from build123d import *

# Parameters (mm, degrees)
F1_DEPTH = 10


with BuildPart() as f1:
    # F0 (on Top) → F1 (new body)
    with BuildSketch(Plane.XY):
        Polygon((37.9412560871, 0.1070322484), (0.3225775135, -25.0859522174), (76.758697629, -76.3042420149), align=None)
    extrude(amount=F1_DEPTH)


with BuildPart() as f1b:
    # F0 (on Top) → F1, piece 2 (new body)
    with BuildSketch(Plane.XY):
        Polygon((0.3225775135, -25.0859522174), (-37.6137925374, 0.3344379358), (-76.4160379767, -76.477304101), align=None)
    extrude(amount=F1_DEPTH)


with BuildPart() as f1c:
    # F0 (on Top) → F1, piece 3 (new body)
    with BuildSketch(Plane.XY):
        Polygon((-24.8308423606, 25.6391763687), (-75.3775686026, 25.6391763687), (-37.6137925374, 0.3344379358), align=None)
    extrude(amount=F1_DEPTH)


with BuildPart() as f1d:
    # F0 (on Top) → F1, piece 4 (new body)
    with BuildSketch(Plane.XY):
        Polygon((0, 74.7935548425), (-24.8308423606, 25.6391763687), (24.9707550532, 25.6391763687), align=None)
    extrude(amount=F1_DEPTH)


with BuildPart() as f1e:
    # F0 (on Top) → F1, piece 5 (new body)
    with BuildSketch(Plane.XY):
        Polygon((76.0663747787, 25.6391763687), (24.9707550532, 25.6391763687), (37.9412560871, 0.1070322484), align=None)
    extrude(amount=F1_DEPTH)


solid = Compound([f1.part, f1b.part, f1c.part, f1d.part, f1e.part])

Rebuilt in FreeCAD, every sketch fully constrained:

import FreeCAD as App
import Part
import Sketcher
from FreeCAD import Vector

doc = App.newDocument("Part")
body = doc.addObject("PartDesign::Body", "Body")

# Sketch on XY plane
sketch1 = doc.addObject("Sketcher::SketchObject", "Sketch")
body.addObject(sketch1)
sketch1.AttachmentSupport = (doc.XY_Plane, [""])
sketch1.MapMode = "FlatFace"
sketch1.addGeometry([
    Part.LineSegment(Vector(38, 0, 0), Vector(0, -25, 0)),
    Part.LineSegment(Vector(0, -25, 0), Vector(77, -76, 0)),
    Part.LineSegment(Vector(77, -76, 0), Vector(38, 0, 0)),
], False)
sketch1.addConstraint([
    Sketcher.Constraint("Coincident", 0, 2, 1, 1),
    Sketcher.Constraint("Coincident", 1, 2, 2, 1),
    Sketcher.Constraint("Coincident", 2, 2, 0, 1),
    Sketcher.Constraint("DistanceX", 0, 2, 1, 2, 76.43612),
    Sketcher.Constraint("DistanceY", 1, 2, 0, 2, 51.21829),
    Sketcher.Constraint("DistanceX", 0, 2, 2, 2, 37.618679),
    Sketcher.Constraint("Distance", 0, 45.275285),
    Sketcher.Constraint("DistanceX", -1, 1, 0, 2, 0.322578),
    Sketcher.Constraint("DistanceY", 0, 2, -1, 1, 25.085952),
])
pad1 = doc.addObject("PartDesign::Pad", "Pad")
body.addObject(pad1)
pad1.Profile = sketch1
pad1.Length = 10
body2 = doc.addObject("PartDesign::Body", "Body001")

# Sketch on XY plane
sketch2 = doc.addObject("Sketcher::SketchObject", "Sketch001")
body2.addObject(sketch2)
sketch2.AttachmentSupport = (doc.getObject("XY_Plane001"), [""])
sketch2.MapMode = "FlatFace"
sketch2.addGeometry([
    Part.LineSegment(Vector(0, -25, 0), Vector(-38, 0, 0)),
    Part.LineSegment(Vector(-38, 0, 0), Vector(-76, -76, 0)),
    Part.LineSegment(Vector(-76, -76, 0), Vector(0, -25, 0)),
], False)
sketch2.addConstraint([
    Sketcher.Constraint("Coincident", 0, 2, 1, 1),
    Sketcher.Constraint("Coincident", 1, 2, 2, 1),
    Sketcher.Constraint("Coincident", 2, 2, 0, 1),
    Sketcher.Constraint("Distance", 0, 45.66579),
    Sketcher.Constraint("DistanceX", 0, 2, 2, 2, 37.93637),
    Sketcher.Constraint("DistanceY", 1, 2, 2, 2, 51.391352),
    Sketcher.Constraint("Distance", 1, 86.056133),
    Sketcher.Constraint("DistanceX", 0, 2, -1, 1, 37.613793),
    Sketcher.Constraint("DistanceY", -1, 1, 0, 2, 0.334438),
])
pad2 = doc.addObject("PartDesign::Pad", "Pad001")
body2.addObject(pad2)
pad2.Profile = sketch2
pad2.Length = 10
body3 = doc.addObject("PartDesign::Body", "Body002")

# Sketch on XY plane
sketch3 = doc.addObject("Sketcher::SketchObject", "Sketch002")
body3.addObject(sketch3)
sketch3.AttachmentSupport = (doc.getObject("XY_Plane002"), [""])
sketch3.MapMode = "FlatFace"
sketch3.addGeometry([
    Part.LineSegment(Vector(-25, 26, 0), Vector(-75, 26, 0)),
    Part.LineSegment(Vector(-75, 26, 0), Vector(-38, 0, 0)),
    Part.LineSegment(Vector(-38, 0, 0), Vector(-25, 26, 0)),
], False)
sketch3.addConstraint([
    Sketcher.Constraint("Coincident", 0, 2, 1, 1),
    Sketcher.Constraint("Coincident", 1, 2, 2, 1),
    Sketcher.Constraint("Coincident", 2, 2, 0, 1),
    Sketcher.Constraint("Horizontal", 0),
    Sketcher.Constraint("Distance", 1, 45.458031),
    Sketcher.Constraint("DistanceX", 0, 2, 0, 1, 50.546726),
    Sketcher.Constraint("DistanceX", 0, 2, -1, 1, 75.377569),
    Sketcher.Constraint("DistanceY", 1, 2, 0, 2, 25.304738),
    Sketcher.Constraint("DistanceY", -1, 1, 0, 2, 25.639176),
])
pad3 = doc.addObject("PartDesign::Pad", "Pad002")
body3.addObject(pad3)
pad3.Profile = sketch3
pad3.Length = 10
body4 = doc.addObject("PartDesign::Body", "Body003")

# Sketch on XY plane
sketch4 = doc.addObject("Sketcher::SketchObject", "Sketch003")
body4.addObject(sketch4)
sketch4.AttachmentSupport = (doc.getObject("XY_Plane003"), [""])
sketch4.MapMode = "FlatFace"
sketch4.addGeometry([
    Part.LineSegment(Vector(0, 75, 0), Vector(-25, 26, 0)),
    Part.LineSegment(Vector(-25, 26, 0), Vector(25, 26, 0)),
    Part.LineSegment(Vector(25, 26, 0), Vector(0, 75, 0)),
], False)
sketch4.addConstraint([
    Sketcher.Constraint("Coincident", 0, 2, 1, 1),
    Sketcher.Constraint("Coincident", 1, 2, 2, 1),
    Sketcher.Constraint("Coincident", 2, 2, 0, 1),
    Sketcher.Constraint("Horizontal", 1),
    Sketcher.Constraint("PointOnObject", 2, 2, -2),
    Sketcher.Constraint("Distance", 0, 55.07017),
    Sketcher.Constraint("DistanceX", 1, 1, 1, 2, 49.801597),
    Sketcher.Constraint("DistanceY", 0, 2, 2, 2, 49.154378),
    Sketcher.Constraint("DistanceY", -1, 1, 0, 2, 25.639176),
])
pad4 = doc.addObject("PartDesign::Pad", "Pad003")
body4.addObject(pad4)
pad4.Profile = sketch4
pad4.Length = 10
body5 = doc.addObject("PartDesign::Body", "Body004")

# Sketch on XY plane
sketch5 = doc.addObject("Sketcher::SketchObject", "Sketch004")
body5.addObject(sketch5)
sketch5.AttachmentSupport = (doc.getObject("XY_Plane004"), [""])
sketch5.MapMode = "FlatFace"
sketch5.addGeometry([
    Part.LineSegment(Vector(76, 26, 0), Vector(25, 26, 0)),
    Part.LineSegment(Vector(25, 26, 0), Vector(38, 0, 0)),
    Part.LineSegment(Vector(38, 0, 0), Vector(76, 26, 0)),
], False)
sketch5.addConstraint([
    Sketcher.Constraint("Coincident", 0, 2, 1, 1),
    Sketcher.Constraint("Coincident", 1, 2, 2, 1),
    Sketcher.Constraint("Coincident", 2, 2, 0, 1),
    Sketcher.Constraint("Horizontal", 0),
    Sketcher.Constraint("DistanceX", 0, 2, 0, 1, 51.09562),
    Sketcher.Constraint("DistanceX", 0, 2, 1, 2, 12.970501),
    Sketcher.Constraint("Distance", 1, 28.637812),
    Sketcher.Constraint("DistanceX", -1, 1, 0, 2, 24.970755),
    Sketcher.Constraint("DistanceY", -1, 1, 0, 2, 25.639176),
])
pad5 = doc.addObject("PartDesign::Pad", "Pad004")
body5.addObject(pad5)
pad5.Profile = sketch5
pad5.Length = 10

doc.recompute()
